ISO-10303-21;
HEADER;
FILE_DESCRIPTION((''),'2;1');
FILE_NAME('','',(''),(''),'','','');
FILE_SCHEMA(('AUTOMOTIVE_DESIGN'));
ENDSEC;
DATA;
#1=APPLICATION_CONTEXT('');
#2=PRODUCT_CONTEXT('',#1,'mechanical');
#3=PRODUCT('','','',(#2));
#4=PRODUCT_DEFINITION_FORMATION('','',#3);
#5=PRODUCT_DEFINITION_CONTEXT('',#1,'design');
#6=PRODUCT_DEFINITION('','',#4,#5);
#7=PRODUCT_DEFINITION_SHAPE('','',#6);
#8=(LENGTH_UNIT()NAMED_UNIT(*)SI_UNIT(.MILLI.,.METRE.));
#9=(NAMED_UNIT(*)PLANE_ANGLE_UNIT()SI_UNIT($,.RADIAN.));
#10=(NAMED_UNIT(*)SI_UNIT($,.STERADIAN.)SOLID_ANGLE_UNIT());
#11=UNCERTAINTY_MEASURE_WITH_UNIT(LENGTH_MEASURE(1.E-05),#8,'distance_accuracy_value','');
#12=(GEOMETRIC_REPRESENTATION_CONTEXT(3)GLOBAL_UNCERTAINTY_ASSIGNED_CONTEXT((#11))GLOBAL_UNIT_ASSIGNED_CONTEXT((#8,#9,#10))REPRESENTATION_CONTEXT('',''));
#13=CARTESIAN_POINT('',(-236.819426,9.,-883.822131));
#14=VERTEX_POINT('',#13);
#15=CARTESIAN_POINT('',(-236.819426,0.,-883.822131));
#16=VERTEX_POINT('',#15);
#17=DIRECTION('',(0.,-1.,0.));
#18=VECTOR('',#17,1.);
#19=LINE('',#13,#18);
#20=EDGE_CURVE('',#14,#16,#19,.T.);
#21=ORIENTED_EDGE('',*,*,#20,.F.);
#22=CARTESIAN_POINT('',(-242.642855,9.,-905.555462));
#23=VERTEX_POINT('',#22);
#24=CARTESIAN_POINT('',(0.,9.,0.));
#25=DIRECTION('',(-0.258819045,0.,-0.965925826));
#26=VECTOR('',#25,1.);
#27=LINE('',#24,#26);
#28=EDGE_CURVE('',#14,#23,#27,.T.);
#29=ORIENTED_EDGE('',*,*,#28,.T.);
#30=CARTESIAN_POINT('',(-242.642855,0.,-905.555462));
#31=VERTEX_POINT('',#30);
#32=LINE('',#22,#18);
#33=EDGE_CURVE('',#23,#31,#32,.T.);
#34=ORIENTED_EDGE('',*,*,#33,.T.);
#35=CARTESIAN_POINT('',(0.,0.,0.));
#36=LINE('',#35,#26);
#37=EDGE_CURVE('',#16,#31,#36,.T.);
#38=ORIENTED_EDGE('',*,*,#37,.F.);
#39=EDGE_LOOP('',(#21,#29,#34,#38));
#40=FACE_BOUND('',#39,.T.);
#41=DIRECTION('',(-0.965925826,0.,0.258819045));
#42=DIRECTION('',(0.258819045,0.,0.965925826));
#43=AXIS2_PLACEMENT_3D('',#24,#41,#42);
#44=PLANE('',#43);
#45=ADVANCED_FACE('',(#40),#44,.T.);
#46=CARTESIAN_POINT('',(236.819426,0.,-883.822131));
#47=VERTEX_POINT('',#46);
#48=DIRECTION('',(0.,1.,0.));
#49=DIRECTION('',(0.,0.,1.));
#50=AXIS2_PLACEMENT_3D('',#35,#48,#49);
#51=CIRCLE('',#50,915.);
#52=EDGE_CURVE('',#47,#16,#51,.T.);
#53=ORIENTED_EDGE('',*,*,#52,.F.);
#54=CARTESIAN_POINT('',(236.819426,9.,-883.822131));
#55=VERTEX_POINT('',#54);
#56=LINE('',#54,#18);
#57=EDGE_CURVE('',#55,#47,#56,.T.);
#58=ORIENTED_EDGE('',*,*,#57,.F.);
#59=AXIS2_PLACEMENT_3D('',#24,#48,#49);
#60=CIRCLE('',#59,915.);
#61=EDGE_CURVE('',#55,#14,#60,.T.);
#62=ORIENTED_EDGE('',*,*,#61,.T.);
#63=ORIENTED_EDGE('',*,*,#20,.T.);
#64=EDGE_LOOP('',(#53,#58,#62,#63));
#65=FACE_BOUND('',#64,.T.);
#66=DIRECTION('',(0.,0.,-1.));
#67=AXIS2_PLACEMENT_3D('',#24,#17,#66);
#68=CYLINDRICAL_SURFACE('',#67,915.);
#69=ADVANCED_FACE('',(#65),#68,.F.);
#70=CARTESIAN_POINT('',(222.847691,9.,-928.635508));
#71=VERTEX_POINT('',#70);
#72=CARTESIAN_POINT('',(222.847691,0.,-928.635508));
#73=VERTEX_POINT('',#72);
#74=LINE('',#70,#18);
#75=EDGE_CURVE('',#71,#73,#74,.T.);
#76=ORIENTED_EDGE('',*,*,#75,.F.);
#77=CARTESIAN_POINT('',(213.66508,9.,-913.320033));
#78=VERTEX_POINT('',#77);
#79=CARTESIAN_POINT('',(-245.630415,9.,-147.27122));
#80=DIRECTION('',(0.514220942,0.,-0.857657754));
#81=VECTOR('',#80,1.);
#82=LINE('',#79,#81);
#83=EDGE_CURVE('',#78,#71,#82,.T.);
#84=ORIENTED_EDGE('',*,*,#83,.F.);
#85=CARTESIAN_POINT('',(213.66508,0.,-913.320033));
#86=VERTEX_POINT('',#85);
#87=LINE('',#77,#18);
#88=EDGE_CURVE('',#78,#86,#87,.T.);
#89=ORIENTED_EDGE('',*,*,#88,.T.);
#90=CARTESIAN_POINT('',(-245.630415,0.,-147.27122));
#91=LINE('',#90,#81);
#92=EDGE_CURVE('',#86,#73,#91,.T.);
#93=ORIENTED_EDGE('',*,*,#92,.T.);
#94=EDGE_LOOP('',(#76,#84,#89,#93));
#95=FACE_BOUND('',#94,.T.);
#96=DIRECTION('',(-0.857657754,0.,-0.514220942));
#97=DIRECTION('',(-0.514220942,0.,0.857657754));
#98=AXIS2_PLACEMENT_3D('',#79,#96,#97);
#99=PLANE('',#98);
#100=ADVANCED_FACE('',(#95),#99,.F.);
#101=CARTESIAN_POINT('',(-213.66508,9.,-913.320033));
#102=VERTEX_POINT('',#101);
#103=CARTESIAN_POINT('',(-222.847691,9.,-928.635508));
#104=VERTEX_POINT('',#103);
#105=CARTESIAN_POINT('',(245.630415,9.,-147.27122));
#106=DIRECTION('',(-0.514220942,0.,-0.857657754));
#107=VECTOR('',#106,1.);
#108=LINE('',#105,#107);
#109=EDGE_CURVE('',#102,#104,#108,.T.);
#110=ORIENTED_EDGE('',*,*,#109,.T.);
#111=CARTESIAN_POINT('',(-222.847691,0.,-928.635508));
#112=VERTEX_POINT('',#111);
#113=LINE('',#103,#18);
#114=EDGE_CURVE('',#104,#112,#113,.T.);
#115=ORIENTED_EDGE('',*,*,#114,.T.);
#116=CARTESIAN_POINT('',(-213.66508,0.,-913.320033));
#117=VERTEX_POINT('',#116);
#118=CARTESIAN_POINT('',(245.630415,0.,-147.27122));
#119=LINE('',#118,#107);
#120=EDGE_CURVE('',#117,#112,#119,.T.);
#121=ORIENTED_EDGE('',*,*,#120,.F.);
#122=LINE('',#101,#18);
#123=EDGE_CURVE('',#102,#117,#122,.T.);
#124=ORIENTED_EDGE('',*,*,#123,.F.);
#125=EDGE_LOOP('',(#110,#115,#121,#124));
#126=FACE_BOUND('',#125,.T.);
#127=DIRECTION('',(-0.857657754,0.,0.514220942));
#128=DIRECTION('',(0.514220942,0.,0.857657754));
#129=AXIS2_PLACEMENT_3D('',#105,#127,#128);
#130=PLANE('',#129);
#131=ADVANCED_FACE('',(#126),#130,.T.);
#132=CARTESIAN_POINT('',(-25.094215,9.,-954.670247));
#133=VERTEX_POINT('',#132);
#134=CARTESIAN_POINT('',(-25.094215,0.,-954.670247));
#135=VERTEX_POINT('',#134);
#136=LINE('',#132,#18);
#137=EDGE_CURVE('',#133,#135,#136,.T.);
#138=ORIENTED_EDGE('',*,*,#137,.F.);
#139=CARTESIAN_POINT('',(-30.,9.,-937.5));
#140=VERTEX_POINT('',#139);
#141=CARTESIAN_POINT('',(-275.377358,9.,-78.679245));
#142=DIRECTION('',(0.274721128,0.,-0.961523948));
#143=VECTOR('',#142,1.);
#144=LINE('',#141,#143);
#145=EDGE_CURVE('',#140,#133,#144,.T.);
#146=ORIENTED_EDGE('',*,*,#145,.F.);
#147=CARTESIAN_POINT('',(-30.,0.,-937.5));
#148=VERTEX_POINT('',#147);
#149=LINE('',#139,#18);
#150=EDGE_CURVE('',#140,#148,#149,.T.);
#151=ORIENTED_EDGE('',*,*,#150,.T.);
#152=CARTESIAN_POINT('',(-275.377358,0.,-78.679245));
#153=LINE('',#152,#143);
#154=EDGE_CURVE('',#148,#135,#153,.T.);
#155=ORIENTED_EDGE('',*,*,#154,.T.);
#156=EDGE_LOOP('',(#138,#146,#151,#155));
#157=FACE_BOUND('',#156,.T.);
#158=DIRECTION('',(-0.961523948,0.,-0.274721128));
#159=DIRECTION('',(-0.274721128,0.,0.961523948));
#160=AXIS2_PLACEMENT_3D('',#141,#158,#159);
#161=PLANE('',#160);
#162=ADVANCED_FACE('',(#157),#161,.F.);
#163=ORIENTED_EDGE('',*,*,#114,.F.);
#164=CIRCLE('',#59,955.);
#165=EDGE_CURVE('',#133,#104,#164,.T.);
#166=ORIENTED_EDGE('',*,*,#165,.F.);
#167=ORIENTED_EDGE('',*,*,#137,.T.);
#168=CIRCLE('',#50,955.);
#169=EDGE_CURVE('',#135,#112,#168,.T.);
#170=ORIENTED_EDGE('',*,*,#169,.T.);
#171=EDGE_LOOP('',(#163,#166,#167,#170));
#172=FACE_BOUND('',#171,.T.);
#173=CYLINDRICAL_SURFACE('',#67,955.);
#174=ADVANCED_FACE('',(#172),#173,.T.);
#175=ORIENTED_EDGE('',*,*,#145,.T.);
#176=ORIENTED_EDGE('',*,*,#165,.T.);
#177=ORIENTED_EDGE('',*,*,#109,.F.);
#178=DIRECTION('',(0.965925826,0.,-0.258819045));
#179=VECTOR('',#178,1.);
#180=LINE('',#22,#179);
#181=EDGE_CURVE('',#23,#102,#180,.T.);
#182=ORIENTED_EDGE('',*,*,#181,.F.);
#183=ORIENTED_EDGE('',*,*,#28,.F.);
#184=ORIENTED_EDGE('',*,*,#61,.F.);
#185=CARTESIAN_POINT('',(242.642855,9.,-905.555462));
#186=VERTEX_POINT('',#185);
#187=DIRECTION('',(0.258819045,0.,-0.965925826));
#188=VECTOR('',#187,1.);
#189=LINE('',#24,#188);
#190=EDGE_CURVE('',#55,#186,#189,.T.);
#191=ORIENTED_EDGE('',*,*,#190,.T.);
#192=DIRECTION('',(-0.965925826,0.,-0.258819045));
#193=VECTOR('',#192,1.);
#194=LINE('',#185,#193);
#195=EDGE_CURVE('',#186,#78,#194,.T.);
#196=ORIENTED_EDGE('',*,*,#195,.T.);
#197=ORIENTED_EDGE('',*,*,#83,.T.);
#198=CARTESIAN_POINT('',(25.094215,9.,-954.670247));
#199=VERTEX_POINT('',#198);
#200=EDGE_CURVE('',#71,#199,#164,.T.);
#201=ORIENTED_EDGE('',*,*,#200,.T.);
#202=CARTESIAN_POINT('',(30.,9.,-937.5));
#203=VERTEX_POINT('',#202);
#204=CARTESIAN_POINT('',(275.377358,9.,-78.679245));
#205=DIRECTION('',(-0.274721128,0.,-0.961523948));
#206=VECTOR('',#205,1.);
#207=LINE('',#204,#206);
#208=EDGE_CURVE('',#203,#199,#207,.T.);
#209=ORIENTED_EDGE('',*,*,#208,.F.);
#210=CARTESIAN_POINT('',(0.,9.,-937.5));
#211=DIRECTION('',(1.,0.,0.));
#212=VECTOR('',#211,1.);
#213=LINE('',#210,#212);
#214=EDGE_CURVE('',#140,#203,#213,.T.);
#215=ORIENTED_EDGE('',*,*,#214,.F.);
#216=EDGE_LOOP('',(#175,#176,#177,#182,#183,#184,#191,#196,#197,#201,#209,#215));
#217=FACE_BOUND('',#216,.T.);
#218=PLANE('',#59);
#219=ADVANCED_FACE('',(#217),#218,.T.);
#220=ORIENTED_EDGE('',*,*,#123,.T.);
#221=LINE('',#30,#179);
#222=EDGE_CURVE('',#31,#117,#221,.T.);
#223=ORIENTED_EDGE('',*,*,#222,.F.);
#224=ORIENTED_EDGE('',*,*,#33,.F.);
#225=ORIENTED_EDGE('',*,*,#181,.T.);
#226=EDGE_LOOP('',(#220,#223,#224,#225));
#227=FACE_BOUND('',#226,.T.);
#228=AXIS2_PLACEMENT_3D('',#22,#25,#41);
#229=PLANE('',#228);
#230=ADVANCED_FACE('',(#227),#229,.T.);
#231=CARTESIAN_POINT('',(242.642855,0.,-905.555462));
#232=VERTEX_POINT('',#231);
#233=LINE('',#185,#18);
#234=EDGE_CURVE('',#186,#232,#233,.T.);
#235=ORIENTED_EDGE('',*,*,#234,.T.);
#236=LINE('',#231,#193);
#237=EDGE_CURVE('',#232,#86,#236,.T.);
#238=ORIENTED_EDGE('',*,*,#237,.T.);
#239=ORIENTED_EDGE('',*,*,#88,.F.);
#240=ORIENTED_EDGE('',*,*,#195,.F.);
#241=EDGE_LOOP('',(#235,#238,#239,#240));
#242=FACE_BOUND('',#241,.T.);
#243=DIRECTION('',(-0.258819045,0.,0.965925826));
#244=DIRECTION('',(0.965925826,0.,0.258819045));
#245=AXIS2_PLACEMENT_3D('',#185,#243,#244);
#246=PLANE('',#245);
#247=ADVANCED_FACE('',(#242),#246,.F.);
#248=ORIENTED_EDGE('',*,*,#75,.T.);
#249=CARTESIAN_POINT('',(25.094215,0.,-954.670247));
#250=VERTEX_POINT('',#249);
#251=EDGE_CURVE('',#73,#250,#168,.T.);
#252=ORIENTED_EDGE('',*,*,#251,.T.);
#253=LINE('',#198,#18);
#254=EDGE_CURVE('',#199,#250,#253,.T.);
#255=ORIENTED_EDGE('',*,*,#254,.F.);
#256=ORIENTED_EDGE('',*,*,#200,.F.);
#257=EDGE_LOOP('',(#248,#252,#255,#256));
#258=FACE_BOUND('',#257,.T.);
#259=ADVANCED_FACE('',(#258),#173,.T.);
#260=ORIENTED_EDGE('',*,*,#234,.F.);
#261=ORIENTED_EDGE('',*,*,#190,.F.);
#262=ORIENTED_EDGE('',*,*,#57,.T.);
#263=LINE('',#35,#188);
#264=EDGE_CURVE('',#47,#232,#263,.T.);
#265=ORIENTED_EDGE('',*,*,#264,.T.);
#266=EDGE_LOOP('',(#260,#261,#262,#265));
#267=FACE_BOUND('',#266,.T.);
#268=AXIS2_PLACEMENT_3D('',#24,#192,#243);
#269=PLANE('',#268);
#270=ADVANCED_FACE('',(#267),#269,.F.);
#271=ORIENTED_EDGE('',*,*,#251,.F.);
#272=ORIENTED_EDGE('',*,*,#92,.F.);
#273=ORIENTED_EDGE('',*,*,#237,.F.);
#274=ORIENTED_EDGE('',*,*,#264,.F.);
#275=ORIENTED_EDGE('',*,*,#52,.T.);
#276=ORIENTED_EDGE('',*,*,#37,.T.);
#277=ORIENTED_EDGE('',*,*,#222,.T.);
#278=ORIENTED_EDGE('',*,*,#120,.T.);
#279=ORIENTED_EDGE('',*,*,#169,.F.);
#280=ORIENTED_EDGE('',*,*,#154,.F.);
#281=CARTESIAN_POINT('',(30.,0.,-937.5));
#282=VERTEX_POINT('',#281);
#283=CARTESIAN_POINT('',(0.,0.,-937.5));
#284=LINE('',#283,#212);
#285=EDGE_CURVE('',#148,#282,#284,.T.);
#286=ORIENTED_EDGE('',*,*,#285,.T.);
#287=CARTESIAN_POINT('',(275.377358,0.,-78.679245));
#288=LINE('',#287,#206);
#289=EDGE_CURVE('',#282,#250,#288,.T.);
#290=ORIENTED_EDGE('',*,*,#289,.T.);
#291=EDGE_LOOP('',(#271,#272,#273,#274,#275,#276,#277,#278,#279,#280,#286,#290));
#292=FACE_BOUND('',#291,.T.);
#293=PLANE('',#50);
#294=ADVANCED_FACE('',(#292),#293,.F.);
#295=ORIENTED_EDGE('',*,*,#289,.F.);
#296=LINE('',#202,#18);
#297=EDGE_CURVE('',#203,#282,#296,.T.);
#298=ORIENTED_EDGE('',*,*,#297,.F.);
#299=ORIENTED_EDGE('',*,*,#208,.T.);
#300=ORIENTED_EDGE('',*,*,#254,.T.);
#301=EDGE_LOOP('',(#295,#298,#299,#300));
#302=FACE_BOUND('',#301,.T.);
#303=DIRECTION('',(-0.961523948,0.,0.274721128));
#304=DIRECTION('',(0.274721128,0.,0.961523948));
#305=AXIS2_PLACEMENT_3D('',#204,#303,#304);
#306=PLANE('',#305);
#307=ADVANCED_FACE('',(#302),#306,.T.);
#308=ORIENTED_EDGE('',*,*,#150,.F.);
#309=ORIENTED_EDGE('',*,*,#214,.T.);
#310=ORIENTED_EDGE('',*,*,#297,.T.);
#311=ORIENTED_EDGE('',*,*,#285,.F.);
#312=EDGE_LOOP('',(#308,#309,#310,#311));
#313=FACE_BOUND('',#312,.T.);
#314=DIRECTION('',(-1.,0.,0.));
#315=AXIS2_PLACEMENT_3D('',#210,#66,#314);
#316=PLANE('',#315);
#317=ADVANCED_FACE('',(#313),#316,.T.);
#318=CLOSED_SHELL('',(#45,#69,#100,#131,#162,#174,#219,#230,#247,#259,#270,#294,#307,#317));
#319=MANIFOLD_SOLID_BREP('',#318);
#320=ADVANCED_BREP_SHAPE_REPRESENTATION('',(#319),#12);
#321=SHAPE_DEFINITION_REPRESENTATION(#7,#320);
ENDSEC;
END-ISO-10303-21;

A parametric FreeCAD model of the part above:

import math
import FreeCAD as App
import Part
import Sketcher
from FreeCAD import Vector
Q = App.Units.Quantity

doc = App.newDocument("Part")
body = doc.addObject("PartDesign::Body", "Body")

sketch1 = body.newObject("Sketcher::SketchObject", "Sketch")
sketch1.AttachmentSupport = (doc.getObject("XZ_Plane"), [""])
sketch1.MapMode = "FlatFace"
sketch1.addGeometry([
    Part.LineSegment(Vector(-243, -906, 0), Vector(-237, -884, 0)),
    Part.ArcOfCircle(Part.Circle(Vector(0, 0, 0), Vector(0, 0, 1), 915), math.radians(-105), math.radians(-75)),
    Part.LineSegment(Vector(237, -884, 0), Vector(243, -906, 0)),
    Part.LineSegment(Vector(243, -906, 0), Vector(214, -913, 0)),
    Part.LineSegment(Vector(214, -913, 0), Vector(223, -929, 0)),
    Part.ArcOfCircle(Part.Circle(Vector(0, 0, 0), Vector(0, 0, 1), 955), math.radians(-88.49), math.radians(-76.51)),
    Part.LineSegment(Vector(25, -955, 0), Vector(30, -938, 0)),
    Part.LineSegment(Vector(30, -938, 0), Vector(-30, -938, 0)),
    Part.LineSegment(Vector(-30, -938, 0), Vector(-25, -955, 0)),
    Part.ArcOfCircle(Part.Circle(Vector(0, 0, 0), Vector(0, 0, 1), 955), math.radians(-103.49), math.radians(-91.51)),
    Part.LineSegment(Vector(-223, -929, 0), Vector(-214, -913, 0)),
    Part.LineSegment(Vector(-214, -913, 0), Vector(-243, -906, 0)),
], False)
sketch1.addConstraint([
    Sketcher.Constraint("Coincident", 0, 2, 1, 1),
    Sketcher.Constraint("Coincident", 1, 2, 2, 1),
    Sketcher.Constraint("Coincident", 2, 2, 3, 1),
    Sketcher.Constraint("Coincident", 3, 2, 4, 1),
    Sketcher.Constraint("Coincident", 4, 2, 5, 2),
    Sketcher.Constraint("Coincident", 5, 1, 6, 1),
    Sketcher.Constraint("Coincident", 6, 2, 7, 1),
    Sketcher.Constraint("Coincident", 7, 2, 8, 1),
    Sketcher.Constraint("Coincident", 8, 2, 9, 2),
    Sketcher.Constraint("Coincident", 9, 1, 10, 1),
    Sketcher.Constraint("Coincident", 10, 2, 11, 1),
    Sketcher.Constraint("Coincident", 11, 2, 0, 1),
    Sketcher.Constraint("Horizontal", 7),
    Sketcher.Constraint("Coincident", 1, 3, -1, 1),
    Sketcher.Constraint("Coincident", 5, 3, -1, 1),
    Sketcher.Constraint("Coincident", 9, 3, -1, 1),
    Sketcher.Constraint("Equal", 5, 9),
    Sketcher.Constraint("Symmetric", 3, 2, 10, 2, -2),
    Sketcher.Constraint("Symmetric", 2, 2, 11, 2, -2),
    Sketcher.Constraint("Perpendicular", 2, 3),
    Sketcher.Constraint("Perpendicular", 0, 11),
    Sketcher.Constraint("Equal", 4, 6),
    Sketcher.Constraint("Equal", 6, 8),
    Sketcher.Constraint("Equal", 8, 10),
    Sketcher.Constraint("Radius", 1, 915.0),
    Sketcher.Constraint("Radius", 5, 955.0),
    Sketcher.Constraint("DistanceX", 7, 2, 7, 1, 60.0),
    Sketcher.Constraint("Angle", 0, Q("75 deg")),
    Sketcher.Constraint("Distance", 3, 30.0),
    Sketcher.Constraint("DistanceX", -1, 1, 6, 2, 30.0),
    Sketcher.Constraint("Distance", 0, 22.5),
    Sketcher.Constraint("DistanceY", 6, 2, -1, 1, 937.5),
    Sketcher.Constraint("DistanceY", 0, 2, -1, 1, 883.822131),
    Sketcher.Constraint("DistanceX", -1, 1, 4, 2, 222.847691),
])
pad1 = body.newObject("PartDesign::Pad", "Pad")
pad1.Profile = sketch1
pad1.Length = 9
pad1.Reversed = True

doc.recompute()
